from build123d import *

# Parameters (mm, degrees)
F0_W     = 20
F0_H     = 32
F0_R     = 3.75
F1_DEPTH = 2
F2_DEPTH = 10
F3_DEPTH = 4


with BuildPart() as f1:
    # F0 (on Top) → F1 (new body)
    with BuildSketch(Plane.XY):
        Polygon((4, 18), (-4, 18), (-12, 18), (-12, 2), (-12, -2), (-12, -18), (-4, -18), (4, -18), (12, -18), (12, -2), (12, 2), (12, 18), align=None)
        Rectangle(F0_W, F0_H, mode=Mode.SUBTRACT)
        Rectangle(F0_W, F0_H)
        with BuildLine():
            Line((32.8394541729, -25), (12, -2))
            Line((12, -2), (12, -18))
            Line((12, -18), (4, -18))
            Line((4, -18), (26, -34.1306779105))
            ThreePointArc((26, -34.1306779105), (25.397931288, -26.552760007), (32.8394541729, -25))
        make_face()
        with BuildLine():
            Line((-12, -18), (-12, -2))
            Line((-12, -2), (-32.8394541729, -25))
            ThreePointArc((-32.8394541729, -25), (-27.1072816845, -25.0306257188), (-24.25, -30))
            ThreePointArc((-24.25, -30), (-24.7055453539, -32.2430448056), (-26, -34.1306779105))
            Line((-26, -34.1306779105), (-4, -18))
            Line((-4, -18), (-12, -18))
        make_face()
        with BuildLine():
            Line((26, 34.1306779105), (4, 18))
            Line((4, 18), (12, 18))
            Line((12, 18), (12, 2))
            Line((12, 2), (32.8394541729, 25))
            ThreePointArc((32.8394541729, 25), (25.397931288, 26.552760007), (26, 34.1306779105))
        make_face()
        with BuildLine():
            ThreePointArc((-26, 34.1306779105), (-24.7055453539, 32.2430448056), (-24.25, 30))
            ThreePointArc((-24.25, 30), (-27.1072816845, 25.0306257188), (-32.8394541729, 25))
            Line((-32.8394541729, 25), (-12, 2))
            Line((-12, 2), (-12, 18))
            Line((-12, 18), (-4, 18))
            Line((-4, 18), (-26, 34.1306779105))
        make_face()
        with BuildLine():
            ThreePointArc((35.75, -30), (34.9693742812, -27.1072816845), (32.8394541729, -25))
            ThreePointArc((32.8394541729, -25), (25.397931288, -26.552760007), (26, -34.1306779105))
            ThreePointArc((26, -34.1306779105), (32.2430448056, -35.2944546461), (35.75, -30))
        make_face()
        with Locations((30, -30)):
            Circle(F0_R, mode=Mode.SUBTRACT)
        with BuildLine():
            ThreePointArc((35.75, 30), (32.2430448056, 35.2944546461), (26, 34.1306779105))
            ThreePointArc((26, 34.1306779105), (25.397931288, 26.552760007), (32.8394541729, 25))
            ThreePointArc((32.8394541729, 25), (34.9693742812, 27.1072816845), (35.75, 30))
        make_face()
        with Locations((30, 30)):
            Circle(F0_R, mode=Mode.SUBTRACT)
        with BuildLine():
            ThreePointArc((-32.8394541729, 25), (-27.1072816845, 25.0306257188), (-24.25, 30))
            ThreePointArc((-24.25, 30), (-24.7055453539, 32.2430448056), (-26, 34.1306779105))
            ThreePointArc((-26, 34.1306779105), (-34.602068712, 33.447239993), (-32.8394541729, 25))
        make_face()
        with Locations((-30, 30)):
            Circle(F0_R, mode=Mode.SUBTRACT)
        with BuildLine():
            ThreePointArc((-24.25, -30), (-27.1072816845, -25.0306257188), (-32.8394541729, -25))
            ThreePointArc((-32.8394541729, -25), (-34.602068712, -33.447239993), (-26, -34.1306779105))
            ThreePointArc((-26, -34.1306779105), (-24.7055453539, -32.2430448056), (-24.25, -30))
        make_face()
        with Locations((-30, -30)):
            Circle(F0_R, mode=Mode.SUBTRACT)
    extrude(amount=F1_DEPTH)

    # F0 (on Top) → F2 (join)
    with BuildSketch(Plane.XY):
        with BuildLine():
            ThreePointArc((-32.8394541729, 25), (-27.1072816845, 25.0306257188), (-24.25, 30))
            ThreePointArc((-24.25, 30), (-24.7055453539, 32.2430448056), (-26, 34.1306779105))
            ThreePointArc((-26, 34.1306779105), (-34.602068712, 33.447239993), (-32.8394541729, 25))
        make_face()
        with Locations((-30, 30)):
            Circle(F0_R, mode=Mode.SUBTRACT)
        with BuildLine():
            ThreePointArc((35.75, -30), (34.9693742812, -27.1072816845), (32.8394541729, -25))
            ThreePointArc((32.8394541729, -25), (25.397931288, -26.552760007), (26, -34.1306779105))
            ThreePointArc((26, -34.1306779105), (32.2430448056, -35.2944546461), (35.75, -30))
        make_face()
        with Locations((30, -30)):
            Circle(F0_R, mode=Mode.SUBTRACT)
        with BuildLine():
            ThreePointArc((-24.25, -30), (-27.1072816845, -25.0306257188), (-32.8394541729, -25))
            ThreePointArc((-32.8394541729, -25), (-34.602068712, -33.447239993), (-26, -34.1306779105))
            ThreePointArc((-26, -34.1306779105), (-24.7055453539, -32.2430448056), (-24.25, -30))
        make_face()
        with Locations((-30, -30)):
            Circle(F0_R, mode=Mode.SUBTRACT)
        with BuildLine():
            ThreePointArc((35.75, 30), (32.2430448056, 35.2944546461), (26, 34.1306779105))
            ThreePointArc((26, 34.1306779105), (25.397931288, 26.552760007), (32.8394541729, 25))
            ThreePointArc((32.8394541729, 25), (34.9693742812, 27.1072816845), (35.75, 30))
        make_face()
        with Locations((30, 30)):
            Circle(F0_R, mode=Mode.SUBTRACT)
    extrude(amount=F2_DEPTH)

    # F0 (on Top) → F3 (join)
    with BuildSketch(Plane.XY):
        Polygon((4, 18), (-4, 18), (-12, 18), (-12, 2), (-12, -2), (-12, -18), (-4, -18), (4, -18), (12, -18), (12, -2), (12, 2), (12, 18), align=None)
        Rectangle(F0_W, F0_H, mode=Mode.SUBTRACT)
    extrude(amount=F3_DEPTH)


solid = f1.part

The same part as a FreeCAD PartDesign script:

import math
import FreeCAD as App
import Part
import Sketcher
from FreeCAD import Vector


def add_polygon(sketch, points):
    """Adds a closed chain of lines whose ends are joined by coincident constraints."""
    first, n = sketch.GeometryCount, len(points)
    for a, b in zip(points, points[1:] + points[:1]):
        sketch.addGeometry(Part.LineSegment(App.Vector(*a, 0), App.Vector(*b, 0)), False)
    for i in range(n):
        sketch.addConstraint(Sketcher.Constraint("Coincident", first + i, 2, first + (i + 1) % n, 1))

doc = App.newDocument("Part")
params = doc.addObject("Spreadsheet::Sheet", "Params")
for row, (alias, value) in enumerate([
    ("sketch1_diameter", "7.5 mm"),
    ("sketch1_width", "8 mm"),
    ("sketch1_height", "4 mm"),
    ("sketch1_radius", "5.75 mm"),
    ("pad1_length", "2 mm"),
    ("sketch2_diameter", "7.5 mm"),
    ("sketch2_radius", "5.75 mm"),
    ("pad2_length", "10 mm"),
    ("sketch3_width", "24 mm"),
    ("sketch3_width2", "20 mm"),
    ("sketch3_height", "36 mm"),
    ("sketch3_height2", "32 mm"),
    ("pad3_length", "4 mm"),
], start=1):
    params.set(f"A{row}", alias)
    params.set(f"B{row}", "=" + value)
    params.setAlias(f"B{row}", alias)

body = doc.addObject("PartDesign::Body", "Body")

sketch1 = body.newObject("Sketcher::SketchObject", "Sketch")
sketch1.AttachmentSupport = (doc.getObject("XY_Plane"), [""])
sketch1.MapMode = "FlatFace"
sketch1.addGeometry(Part.LineSegment(Vector(-12, 2, 0), Vector(-12, -2, 0)), False)
sketch1.addGeometry(Part.LineSegment(Vector(-12, -2, 0), Vector(-32.8, -25, 0)), False)
sketch1.addGeometry(Part.ArcOfCircle(Part.Circle(Vector(-30, -30, 0), Vector(0, 0, 1), 5.8), math.radians(120), math.radians(314)), False)
sketch1.addGeometry(Part.LineSegment(Vector(-26, -34.1, 0), Vector(-4, -18, 0)), False)
sketch1.addGeometry(Part.LineSegment(Vector(-4, -18, 0), Vector(4, -18, 0)), False)
sketch1.addGeometry(Part.LineSegment(Vector(4, -18, 0), Vector(26, -34.1, 0)), False)
sketch1.addGeometry(Part.ArcOfCircle(Part.Circle(Vector(30, -30, 0), Vector(0, 0, 1), 5.8), math.radians(-134), math.radians(0)), False)
sketch1.addGeometry(Part.ArcOfCircle(Part.Circle(Vector(30, -30, 0), Vector(0, 0, 1), 5.8), math.radians(0), math.radians(60)), False)
sketch1.addGeometry(Part.LineSegment(Vector(32.8, -25, 0), Vector(12, -2, 0)), False)
sketch1.addGeometry(Part.LineSegment(Vector(12, -2, 0), Vector(12, 2, 0)), False)
sketch1.addGeometry(Part.LineSegment(Vector(12, 2, 0), Vector(32.8, 25, 0)), False)
sketch1.addGeometry(Part.ArcOfCircle(Part.Circle(Vector(30, 30, 0), Vector(0, 0, 1), 5.8), math.radians(-60), math.radians(0)), False)
sketch1.addGeometry(Part.ArcOfCircle(Part.Circle(Vector(30, 30, 0), Vector(0, 0, 1), 5.8), math.radians(0), math.radians(134)), False)
sketch1.addGeometry(Part.LineSegment(Vector(26, 34.1, 0), Vector(4, 18, 0)), False)
sketch1.addGeometry(Part.LineSegment(Vector(4, 18, 0), Vector(-4, 18, 0)), False)
sketch1.addGeometry(Part.LineSegment(Vector(-4, 18, 0), Vector(-26, 34.1, 0)), False)
sketch1.addGeometry(Part.ArcOfCircle(Part.Circle(Vector(-30, 30, 0), Vector(0, 0, 1), 5.8), math.radians(46), math.radians(240)), False)
sketch1.addGeometry(Part.LineSegment(Vector(-32.8, 25, 0), Vector(-12, 2, 0)), False)
sketch1.addGeometry(Part.Circle(Vector(-30, -30, 0), Vector(0, 0, 1), 3.8), False)
sketch1.addGeometry(Part.Circle(Vector(30, -30, 0), Vector(0, 0, 1), 3.8), False)
sketch1.addGeometry(Part.Circle(Vector(-30, 30, 0), Vector(0, 0, 1), 3.8), False)
sketch1.addGeometry(Part.Circle(Vector(30, 30, 0), Vector(0, 0, 1), 3.8), False)
sketch1.addConstraint(Sketcher.Constraint("Coincident", 0, 2, 1, 1))
sketch1.addConstraint(Sketcher.Constraint("Coincident", 1, 2, 2, 1))
sketch1.addConstraint(Sketcher.Constraint("Coincident", 2, 2, 3, 1))
sketch1.addConstraint(Sketcher.Constraint("Coincident", 3, 2, 4, 1))
sketch1.addConstraint(Sketcher.Constraint("Coincident", 4, 2, 5, 1))
sketch1.addConstraint(Sketcher.Constraint("Coincident", 5, 2, 6, 1))
sketch1.addConstraint(Sketcher.Constraint("Tangent", 6, 2, 7, 1))
sketch1.addConstraint(Sketcher.Constraint("Coincident", 7, 2, 8, 1))
sketch1.addConstraint(Sketcher.Constraint("Coincident", 8, 2, 9, 1))
sketch1.addConstraint(Sketcher.Constraint("Coincident", 9, 2, 10, 1))
sketch1.addConstraint(Sketcher.Constraint("Coincident", 10, 2, 11, 1))
sketch1.addConstraint(Sketcher.Constraint("Tangent", 11, 2, 12, 1))
sketch1.addConstraint(Sketcher.Constraint("Coincident", 12, 2, 13, 1))
sketch1.addConstraint(Sketcher.Constraint("Coincident", 13, 2, 14, 1))
sketch1.addConstraint(Sketcher.Constraint("Coincident", 14, 2, 15, 1))
sketch1.addConstraint(Sketcher.Constraint("Coincident", 15, 2, 16, 1))
sketch1.addConstraint(Sketcher.Constraint("Coincident", 16, 2, 17, 1))
sketch1.addConstraint(Sketcher.Constraint("Coincident", 17, 2, 0, 1))
sketch1.addConstraint(Sketcher.Constraint("Vertical", 0))
sketch1.addConstraint(Sketcher.Constraint("Horizontal", 4))
sketch1.addConstraint(Sketcher.Constraint("Vertical", 9))
sketch1.addConstraint(Sketcher.Constraint("Horizontal", 14))
sketch1.addConstraint(Sketcher.Constraint("Coincident", 18, 3, 2, 3))
sketch1.addConstraint(Sketcher.Constraint("Coincident", 19, 3, 6, 3))
sketch1.addConstraint(Sketcher.Constraint("Coincident", 20, 3, 16, 3))
sketch1.addConstraint(Sketcher.Constraint("Coincident", 21, 3, 11, 3))
sketch1.addConstraint(Sketcher.Constraint("Equal", 2, 6))
sketch1.addConstraint(Sketcher.Constraint("Equal", 6, 7))
sketch1.addConstraint(Sketcher.Constraint("Equal", 7, 11))
sketch1.addConstraint(Sketcher.Constraint("Equal", 11, 12))
sketch1.addConstraint(Sketcher.Constraint("Equal", 12, 16))
sketch1.addConstraint(Sketcher.Constraint("Equal", 18, 19))
sketch1.addConstraint(Sketcher.Constraint("Equal", 19, 20))
sketch1.addConstraint(Sketcher.Constraint("Equal", 20, 21))
sketch1.addConstraint(Sketcher.Constraint("Symmetric", 2, 3, 11, 3, -1, 1))
sketch1.addConstraint(Sketcher.Constraint("Symmetric", 6, 3, 16, 3, -1, 1))
sketch1.addConstraint(Sketcher.Constraint("Symmetric", 0, 2, 9, 2, -1, 1))
sketch1.addConstraint(Sketcher.Constraint("Symmetric", 3, 2, 13, 2, -1, 1))
sketch1.addConstraint(Sketcher.Constraint("Symmetric", 2, 3, 6, 3, -2))
sketch1.addConstraint(Sketcher.Constraint("Parallel", 1, 10))
sketch1.addConstraint(Sketcher.Constraint("Parallel", 3, 13))
sketch1.addConstraint(Sketcher.Constraint("Parallel", 5, 15))
sketch1.addConstraint(Sketcher.Constraint("Parallel", 8, 17))
sketch1.addConstraint(Sketcher.Constraint("Horizontal", 2, 2, 5, 2))
sketch1.addConstraint(Sketcher.Constraint("Horizontal", 19, 3, 6, 2))
sketch1.addConstraint(Sketcher.Constraint("Horizontal", 1, 2, 7, 2))
sketch1.addConstraint(Sketcher.Constraint("Horizontal", 0, 2, 8, 2))
sketch1.addConstraint(Sketcher.Constraint("Horizontal", 21, 3, 11, 2))
sketch1.addConstraint(Sketcher.Constraint("Horizontal", 12, 2, 15, 2))
sketch1.addConstraint(Sketcher.Constraint("Horizontal", 10, 2, 16, 2))
sketch1.addConstraint(Sketcher.Constraint("Vertical", 4, 2, 13, 2))
sketch1.addConstraint(Sketcher.Constraint("Diameter", 18, 7.5))
sketch1.addConstraint(Sketcher.Constraint("DistanceX", 4, 1, 4, 2, 8.0))
sketch1.addConstraint(Sketcher.Constraint("DistanceY", 0, 2, 0, 1, 4.0))
sketch1.addConstraint(Sketcher.Constraint("Radius", 2, 5.75))
sketch1.addConstraint(Sketcher.Constraint("DistanceX", 2, 3, -1, 1, 30.0))
sketch1.addConstraint(Sketcher.Constraint("DistanceY", 2, 3, -1, 1, 30.0))
sketch1.addConstraint(Sketcher.Constraint("DistanceX", 0, 2, -1, 1, 12.0))
sketch1.addConstraint(Sketcher.Constraint("DistanceY", 1, 2, -1, 1, 25.0))
sketch1.addConstraint(Sketcher.Constraint("DistanceX", 2, 2, -1, 1, 26.0))
sketch1.addConstraint(Sketcher.Constraint("DistanceY", 3, 2, -1, 1, 18.0))
sketch1.setExpression("Constraints[51]", "Params.sketch1_diameter")
sketch1.setExpression("Constraints[52]", "Params.sketch1_width")
sketch1.setExpression("Constraints[53]", "Params.sketch1_height")
sketch1.setExpression("Constraints[54]", "Params.sketch1_radius")
pad1 = body.newObject("PartDesign::Pad", "Pad")
pad1.Profile = sketch1
pad1.setExpression("Length", "Params.pad1_length")

sketch2 = body.newObject("Sketcher::SketchObject", "Sketch001")
sketch2.AttachmentSupport = (doc.getObject("XY_Plane"), [""])
sketch2.MapMode = "FlatFace"
sketch2.addGeometry(Part.ArcOfCircle(Part.Circle(Vector(-30, 30, 0), Vector(0, 0, 1), 5.8), math.radians(-120), math.radians(0)), False)
sketch2.addGeometry(Part.ArcOfCircle(Part.Circle(Vector(-30, 30, 0), Vector(0, 0, 1), 5.8), math.radians(0), math.radians(46)), False)
sketch2.addGeometry(Part.ArcOfCircle(Part.Circle(Vector(-30, 30, 0), Vector(0, 0, 1), 5.8), math.radians(46), math.radians(240)), False)
sketch2.addGeometry(Part.Circle(Vector(-30, 30, 0), Vector(0, 0, 1), 3.8), False)
sketch2.addGeometry(Part.ArcOfCircle(Part.Circle(Vector(30, -30, 0), Vector(0, 0, 1), 5.8), math.radians(0), math.radians(60)), False)
sketch2.addGeometry(Part.ArcOfCircle(Part.Circle(Vector(30, -30, 0), Vector(0, 0, 1), 5.8), math.radians(60), math.radians(226)), False)
sketch2.addGeometry(Part.ArcOfCircle(Part.Circle(Vector(30, -30, 0), Vector(0, 0, 1), 5.8), math.radians(-134), math.radians(0)), False)
sketch2.addGeometry(Part.Circle(Vector(30, -30, 0), Vector(0, 0, 1), 3.8), False)
sketch2.addGeometry(Part.ArcOfCircle(Part.Circle(Vector(-30, -30, 0), Vector(0, 0, 1), 5.8), math.radians(0), math.radians(120)), False)
sketch2.addGeometry(Part.ArcOfCircle(Part.Circle(Vector(-30, -30, 0), Vector(0, 0, 1), 5.8), math.radians(120), math.radians(314)), False)
sketch2.addGeometry(Part.ArcOfCircle(Part.Circle(Vector(-30, -30, 0), Vector(0, 0, 1), 5.8), math.radians(-46), math.radians(0)), False)
sketch2.addGeometry(Part.Circle(Vector(-30, -30, 0), Vector(0, 0, 1), 3.8), False)
sketch2.addGeometry(Part.ArcOfCircle(Part.Circle(Vector(30, 30, 0), Vector(0, 0, 1), 5.8), math.radians(0), math.radians(134)), False)
sketch2.addGeometry(Part.ArcOfCircle(Part.Circle(Vector(30, 30, 0), Vector(0, 0, 1), 5.8), math.radians(134), math.radians(300)), False)
sketch2.addGeometry(Part.ArcOfCircle(Part.Circle(Vector(30, 30, 0), Vector(0, 0, 1), 5.8), math.radians(-60), math.radians(0)), False)
sketch2.addGeometry(Part.Circle(Vector(30, 30, 0), Vector(0, 0, 1), 3.8), False)
sketch2.addConstraint(Sketcher.Constraint("Tangent", 0, 2, 1, 1))
sketch2.addConstraint(Sketcher.Constraint("Tangent", 1, 2, 2, 1))
sketch2.addConstraint(Sketcher.Constraint("Tangent", 2, 2, 0, 1))
sketch2.addConstraint(Sketcher.Constraint("Tangent", 4, 2, 5, 1))
sketch2.addConstraint(Sketcher.Constraint("Tangent", 5, 2, 6, 1))
sketch2.addConstraint(Sketcher.Constraint("Tangent", 6, 2, 4, 1))
sketch2.addConstraint(Sketcher.Constraint("Tangent", 8, 2, 9, 1))
sketch2.addConstraint(Sketcher.Constraint("Tangent", 9, 2, 10, 1))
sketch2.addConstraint(Sketcher.Constraint("Tangent", 10, 2, 8, 1))
sketch2.addConstraint(Sketcher.Constraint("Tangent", 12, 2, 13, 1))
sketch2.addConstraint(Sketcher.Constraint("Tangent", 13, 2, 14, 1))
sketch2.addConstraint(Sketcher.Constraint("Tangent", 14, 2, 12, 1))
sketch2.addConstraint(Sketcher.Constraint("Coincident", 3, 3, 0, 3))
sketch2.addConstraint(Sketcher.Constraint("Coincident", 7, 3, 4, 3))
sketch2.addConstraint(Sketcher.Constraint("Coincident", 11, 3, 8, 3))
sketch2.addConstraint(Sketcher.Constraint("Coincident", 15, 3, 12, 3))
sketch2.addConstraint(Sketcher.Constraint("Equal", 2, 4))
sketch2.addConstraint(Sketcher.Constraint("Equal", 3, 7))
sketch2.addConstraint(Sketcher.Constraint("Equal", 6, 8))
sketch2.addConstraint(Sketcher.Constraint("Equal", 7, 11))
sketch2.addConstraint(Sketcher.Constraint("Equal", 10, 12))
sketch2.addConstraint(Sketcher.Constraint("Equal", 11, 15))
sketch2.addConstraint(Sketcher.Constraint("Symmetric", 0, 3, 4, 3, -1, 1))
sketch2.addConstraint(Sketcher.Constraint("Symmetric", 8, 3, 12, 3, -1, 1))
sketch2.addConstraint(Sketcher.Constraint("Symmetric", 4, 3, 8, 3, -2))
sketch2.addConstraint(Sketcher.Constraint("Horizontal", 15, 3, 0, 2))
sketch2.addConstraint(Sketcher.Constraint("Horizontal", 11, 3, 6, 2))
sketch2.addConstraint(Sketcher.Constraint("Horizontal", 4, 2, 8, 2))
sketch2.addConstraint(Sketcher.Constraint("Horizontal", 5, 2, 9, 2))
sketch2.addConstraint(Sketcher.Constraint("Horizontal", 6, 2, 10, 2))
sketch2.addConstraint(Sketcher.Constraint("Horizontal", 1, 2, 12, 2))
sketch2.addConstraint(Sketcher.Constraint("Horizontal", 2, 2, 13, 2))
sketch2.addConstraint(Sketcher.Constraint("Horizontal", 0, 2, 14, 2))
sketch2.addConstraint(Sketcher.Constraint("Vertical", 2, 2, 8, 2))
sketch2.addConstraint(Sketcher.Constraint("Vertical", 1, 2, 9, 2))
sketch2.addConstraint(Sketcher.Constraint("Diameter", 3, 7.5))
sketch2.addConstraint(Sketcher.Constraint("Radius", 0, 5.75))
sketch2.addConstraint(Sketcher.Constraint("DistanceX", 0, 3, -1, 1, 30.0))
sketch2.addConstraint(Sketcher.Constraint("DistanceY", -1, 1, 0, 3, 30.0))
sketch2.addConstraint(Sketcher.Constraint("DistanceX", 1, 2, -1, 1, 26.0))
sketch2.addConstraint(Sketcher.Constraint("DistanceY", -1, 1, 2, 2, 25.0))
sketch2.setExpression("Constraints[35]", "Params.sketch2_diameter")
sketch2.setExpression("Constraints[36]", "Params.sketch2_radius")
pad2 = body.newObject("PartDesign::Pad", "Pad001")
pad2.Profile = sketch2
pad2.setExpression("Length", "Params.pad2_length")

sketch3 = body.newObject("Sketcher::SketchObject", "Sketch002")
sketch3.AttachmentSupport = (doc.getObject("XY_Plane"), [""])
sketch3.MapMode = "FlatFace"
add_polygon(sketch3, [(-12, 18), (-12, -18), (12, -18), (12, 18)])
add_polygon(sketch3, [(10, -16), (-10, -16), (-10, 16), (10, 16)])
sketch3.addConstraint(Sketcher.Constraint("Vertical", 0))
sketch3.addConstraint(Sketcher.Constraint("Horizontal", 1))
sketch3.addConstraint(Sketcher.Constraint("Vertical", 2))
sketch3.addConstraint(Sketcher.Constraint("Horizontal", 3))
sketch3.addConstraint(Sketcher.Constraint("Horizontal", 4))
sketch3.addConstraint(Sketcher.Constraint("Vertical", 5))
sketch3.addConstraint(Sketcher.Constraint("Horizontal", 6))
sketch3.addConstraint(Sketcher.Constraint("Vertical", 7))
sketch3.addConstraint(Sketcher.Constraint("Symmetric", 0, 2, 2, 2, -1, 1))
sketch3.addConstraint(Sketcher.Constraint("Symmetric", 4, 2, 6, 2, -1, 1))
sketch3.addConstraint(Sketcher.Constraint("DistanceX", 1, 1, 1, 2, 24.0))
sketch3.addConstraint(Sketcher.Constraint("DistanceX", 4, 2, 4, 1, 20.0))
sketch3.addConstraint(Sketcher.Constraint("DistanceY", 0, 2, 0, 1, 36.0))
sketch3.addConstraint(Sketcher.Constraint("DistanceY", 5, 1, 5, 2, 32.0))
sketch3.setExpression("Constraints[18]", "Params.sketch3_width")
sketch3.setExpression("Constraints[19]", "Params.sketch3_width2")
sketch3.setExpression("Constraints[20]", "Params.sketch3_height")
sketch3.setExpression("Constraints[21]", "Params.sketch3_height2")
pad3 = body.newObject("PartDesign::Pad", "Pad002")
pad3.Profile = sketch3
pad3.setExpression("Length", "Params.pad3_length")

doc.recompute()
